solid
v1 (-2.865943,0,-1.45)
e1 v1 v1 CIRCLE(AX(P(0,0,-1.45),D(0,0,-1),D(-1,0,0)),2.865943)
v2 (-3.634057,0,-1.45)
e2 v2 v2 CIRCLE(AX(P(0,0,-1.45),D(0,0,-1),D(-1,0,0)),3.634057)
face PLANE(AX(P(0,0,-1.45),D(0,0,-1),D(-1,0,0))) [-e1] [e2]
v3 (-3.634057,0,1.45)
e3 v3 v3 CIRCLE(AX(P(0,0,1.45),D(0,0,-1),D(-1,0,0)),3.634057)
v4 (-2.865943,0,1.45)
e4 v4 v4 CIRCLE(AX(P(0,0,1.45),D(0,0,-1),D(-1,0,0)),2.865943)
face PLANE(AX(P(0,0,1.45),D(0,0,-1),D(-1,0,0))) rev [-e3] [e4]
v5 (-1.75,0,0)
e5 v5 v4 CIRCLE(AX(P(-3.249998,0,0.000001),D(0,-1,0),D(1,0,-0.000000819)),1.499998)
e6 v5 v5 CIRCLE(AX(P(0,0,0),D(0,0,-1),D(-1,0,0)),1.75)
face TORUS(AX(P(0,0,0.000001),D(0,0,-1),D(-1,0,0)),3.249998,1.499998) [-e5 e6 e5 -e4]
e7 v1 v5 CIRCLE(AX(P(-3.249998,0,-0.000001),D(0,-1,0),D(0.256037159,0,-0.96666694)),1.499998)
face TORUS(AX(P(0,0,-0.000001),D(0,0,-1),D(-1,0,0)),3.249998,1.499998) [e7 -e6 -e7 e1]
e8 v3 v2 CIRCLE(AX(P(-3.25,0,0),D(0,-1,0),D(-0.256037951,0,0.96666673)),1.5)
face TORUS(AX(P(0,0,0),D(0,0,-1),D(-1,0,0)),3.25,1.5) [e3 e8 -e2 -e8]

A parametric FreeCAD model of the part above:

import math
import FreeCAD as App
import Part
import Sketcher
from FreeCAD import Vector

doc = App.newDocument("Part")
params = doc.addObject("Spreadsheet::Sheet", "Params")
for row, (alias, value) in enumerate([
    ("sketch1_radius", "1.499998 mm"),
    ("revolution_angle", "360 deg"),
], start=1):
    params.set(f"A{row}", alias)
    params.set(f"B{row}", "=" + value)
    params.setAlias(f"B{row}", alias)

body = doc.addObject("PartDesign::Body", "Body")

sketch1 = body.newObject("Sketcher::SketchObject", "Sketch")
sketch1.AttachmentSupport = (doc.getObject("XZ_Plane"), [""])
sketch1.MapMode = "FlatFace"
sketch1.addGeometry(Part.ArcOfCircle(Part.Circle(Vector(-3.2, 0, 0), Vector(0, 0, 1), 1.5), math.radians(-75), math.radians(0)), False)
sketch1.addGeometry(Part.ArcOfCircle(Part.Circle(Vector(-3.2, 0, 0), Vector(0, 0, 1), 1.5), math.radians(0), math.radians(75)), False)
sketch1.addGeometry(Part.LineSegment(Vector(-2.9, 1.4, 0), Vector(-3.6, 1.4, 0)), False)
sketch1.addGeometry(Part.ArcOfCircle(Part.Circle(Vector(-3.3, 0, 0), Vector(0, 0, 1), 1.5), math.radians(105), math.radians(255)), False)
sketch1.addGeometry(Part.LineSegment(Vector(-3.6, -1.4, 0), Vector(-2.9, -1.4, 0)), False)
sketch1.addConstraint(Sketcher.Constraint("Tangent", 0, 2, 1, 1))
sketch1.addConstraint(Sketcher.Constraint("Coincident", 1, 2, 2, 1))
sketch1.addConstraint(Sketcher.Constraint("Coincident", 2, 2, 3, 1))
sketch1.addConstraint(Sketcher.Constraint("Coincident", 3, 2, 4, 1))
sketch1.addConstraint(Sketcher.Constraint("Coincident", 4, 2, 0, 1))
sketch1.addConstraint(Sketcher.Constraint("Horizontal", 2))
sketch1.addConstraint(Sketcher.Constraint("Horizontal", 4))
sketch1.addConstraint(Sketcher.Constraint("Coincident", 3, 3, 0, 3))
sketch1.addConstraint(Sketcher.Constraint("Equal", 0, 1))
sketch1.addConstraint(Sketcher.Constraint("Equal", 1, 3))
sketch1.addConstraint(Sketcher.Constraint("Symmetric", 2, 2, 3, 2, -1))
sketch1.addConstraint(Sketcher.Constraint("PointOnObject", 0, 2, -1))
sketch1.addConstraint(Sketcher.Constraint("Radius", 0, 1.499998))
sketch1.addConstraint(Sketcher.Constraint("DistanceY", 3, 2, 2, 2, 2.9))
sketch1.addConstraint(Sketcher.Constraint("DistanceX", 0, 3, -1, 1, 3.249998))
sketch1.setExpression("Constraints[12]", "Params.sketch1_radius")
revolution = body.newObject("PartDesign::Revolution", "Revolution")
revolution.Profile = sketch1
revolution.ReferenceAxis = (sketch1, ["V_Axis"])
revolution.setExpression("Angle", "Params.revolution_angle")

doc.recompute()
